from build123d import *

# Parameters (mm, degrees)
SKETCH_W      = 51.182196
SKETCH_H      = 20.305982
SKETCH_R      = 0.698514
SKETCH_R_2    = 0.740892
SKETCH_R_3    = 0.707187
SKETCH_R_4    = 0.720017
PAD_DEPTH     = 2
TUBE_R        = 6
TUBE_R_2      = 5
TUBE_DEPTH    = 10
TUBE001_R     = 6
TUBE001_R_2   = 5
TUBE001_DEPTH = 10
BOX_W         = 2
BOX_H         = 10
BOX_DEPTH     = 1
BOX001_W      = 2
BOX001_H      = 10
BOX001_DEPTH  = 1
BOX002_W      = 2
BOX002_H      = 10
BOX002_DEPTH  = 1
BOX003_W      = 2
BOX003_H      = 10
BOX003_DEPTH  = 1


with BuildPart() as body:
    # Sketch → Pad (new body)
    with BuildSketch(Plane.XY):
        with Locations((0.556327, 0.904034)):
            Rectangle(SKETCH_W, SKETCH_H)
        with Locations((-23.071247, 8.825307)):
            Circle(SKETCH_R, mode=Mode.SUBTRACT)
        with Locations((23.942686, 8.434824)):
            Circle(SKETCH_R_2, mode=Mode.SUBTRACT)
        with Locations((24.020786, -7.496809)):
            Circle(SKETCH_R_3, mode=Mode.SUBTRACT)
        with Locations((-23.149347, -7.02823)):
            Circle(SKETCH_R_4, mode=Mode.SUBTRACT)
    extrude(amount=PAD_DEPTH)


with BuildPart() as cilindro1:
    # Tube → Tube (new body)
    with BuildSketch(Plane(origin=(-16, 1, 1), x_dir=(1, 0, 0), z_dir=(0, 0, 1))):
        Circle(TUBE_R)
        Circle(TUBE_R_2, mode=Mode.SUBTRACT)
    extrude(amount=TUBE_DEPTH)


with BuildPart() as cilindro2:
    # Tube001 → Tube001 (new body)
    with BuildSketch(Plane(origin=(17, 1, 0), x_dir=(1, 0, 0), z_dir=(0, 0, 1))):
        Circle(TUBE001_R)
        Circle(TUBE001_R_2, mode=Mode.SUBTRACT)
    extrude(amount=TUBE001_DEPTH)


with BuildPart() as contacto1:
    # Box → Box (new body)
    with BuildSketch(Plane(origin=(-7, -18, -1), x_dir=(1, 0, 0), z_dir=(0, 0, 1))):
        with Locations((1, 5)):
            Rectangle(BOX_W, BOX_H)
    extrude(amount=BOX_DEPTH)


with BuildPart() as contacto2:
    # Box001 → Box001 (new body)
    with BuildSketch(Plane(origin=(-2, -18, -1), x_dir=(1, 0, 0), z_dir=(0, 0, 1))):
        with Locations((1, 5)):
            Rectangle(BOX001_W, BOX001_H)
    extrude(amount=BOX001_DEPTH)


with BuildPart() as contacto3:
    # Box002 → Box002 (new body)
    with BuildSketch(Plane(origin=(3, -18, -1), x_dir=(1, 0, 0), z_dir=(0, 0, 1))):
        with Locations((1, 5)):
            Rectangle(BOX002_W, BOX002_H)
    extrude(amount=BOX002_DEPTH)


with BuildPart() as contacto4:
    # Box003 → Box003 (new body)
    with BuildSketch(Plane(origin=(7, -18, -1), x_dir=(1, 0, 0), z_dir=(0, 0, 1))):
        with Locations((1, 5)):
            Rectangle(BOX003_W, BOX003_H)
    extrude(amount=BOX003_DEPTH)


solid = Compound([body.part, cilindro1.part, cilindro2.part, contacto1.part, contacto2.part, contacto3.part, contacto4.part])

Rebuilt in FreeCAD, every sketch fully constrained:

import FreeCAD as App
import Part
import Sketcher
Q = App.Units.Quantity

doc = App.newDocument("Part")
body = doc.addObject("PartDesign::Body", "Body")

# Sketch on XY plane
sketch1 = body.newObject("Sketcher::SketchObject", "Sketch")
sketch1.AttachmentSupport = (doc.getObject("XY_Plane"), [""])
sketch1.MapMode = "FlatFace"
sketch1.addGeometry([
    Part.LineSegment(App.Vector(-25.034771, 11.057025, 0), App.Vector(-25.034771, -9.248957, 0)),  # 0
    Part.LineSegment(App.Vector(-25.034771, -9.248957, 0), App.Vector(26.147425, -9.248957, 0)),  # 1
    Part.LineSegment(App.Vector(26.147425, -9.248957, 0), App.Vector(26.147425, 11.057025, 0)),  # 2
    Part.LineSegment(App.Vector(26.147425, 11.057025, 0), App.Vector(-25.034771, 11.057025, 0)),  # 3
    Part.Circle(App.Vector(-23.149347, -7.02823, 0), App.Vector(0, 0, 1), 0.720017),  # 4
    Part.Circle(App.Vector(24.020786, -7.496809, 0), App.Vector(0, 0, 1), 0.707187),  # 5
    Part.Circle(App.Vector(-23.071247, 8.825307, 0), App.Vector(0, 0, 1), 0.698514),  # 6
    Part.Circle(App.Vector(23.942686, 8.434824, 0), App.Vector(0, 0, 1), 0.740892),  # 7
], False)
sketch1.addConstraint([
    Sketcher.Constraint("Coincident", 0, 2, 1, 1),
    Sketcher.Constraint("Coincident", 1, 2, 2, 1),
    Sketcher.Constraint("Coincident", 2, 2, 3, 1),
    Sketcher.Constraint("Coincident", 3, 2, 0, 1),
    Sketcher.Constraint("Vertical", 0),
    Sketcher.Constraint("Horizontal", 1),
    Sketcher.Constraint("Vertical", 2),
    Sketcher.Constraint("Horizontal", 3),
    Sketcher.Constraint("Diameter", 4, Q("1.440034 mm")),
    Sketcher.Constraint("Diameter", 5, Q("1.414374 mm")),
    Sketcher.Constraint("Diameter", 6, Q("1.397028 mm")),
    Sketcher.Constraint("Diameter", 7, Q("1.481784 mm")),
    Sketcher.Constraint("DistanceY", 0, 2, 0, 1, Q("20.305982 mm")),
    Sketcher.Constraint("DistanceX", 4, 3, 6, 3, Q("0.0781 mm")),
    Sketcher.Constraint("DistanceX", 7, 3, 5, 3, Q("0.0781 mm")),
    Sketcher.Constraint("DistanceY", 7, 3, 2, 2, Q("2.622201 mm")),
    Sketcher.Constraint("DistanceX", 1, 1, 1, 2, Q("51.182196 mm")),
    Sketcher.Constraint("DistanceY", 4, 3, -1, 1, Q("7.02823 mm")),
    Sketcher.Constraint("DistanceY", 5, 3, -1, 1, Q("7.496809 mm")),
    Sketcher.Constraint("DistanceX", 0, 2, -1, 1, Q("25.034771 mm")),
    Sketcher.Constraint("DistanceY", 0, 2, 5, 3, Q("1.752148 mm")),
    Sketcher.Constraint("DistanceX", 5, 3, 1, 2, Q("2.126639 mm")),
    Sketcher.Constraint("DistanceX", 4, 3, 1, 2, Q("49.296772 mm")),
    Sketcher.Constraint("DistanceY", -1, 1, 6, 3, Q("8.825307 mm")),
])
pad1 = body.newObject("PartDesign::Pad", "Pad")
pad1.Profile = sketch1
pad1.Length = 2
body2 = doc.addObject("PartDesign::Body", "Body001")

# Sketch on XY plane
sketch2 = body2.newObject("Sketcher::SketchObject", "Sketch001")
sketch2.AttachmentSupport = (doc.getObject("XY_Plane001"), [""])
sketch2.MapMode = "FlatFace"
sketch2.AttachmentOffset = App.Placement(App.Vector(0, 0, 1), App.Rotation())
sketch2.addGeometry([
    Part.Circle(App.Vector(-16, 1, 0), App.Vector(0, 0, 1), 6),
    Part.Circle(App.Vector(-16, 1, 0), App.Vector(0, 0, 1), 5),
], False)
sketch2.addConstraint([
    Sketcher.Constraint("Coincident", 1, 3, 0, 3),
    Sketcher.Constraint("Diameter", 0, Q("12 mm")),
    Sketcher.Constraint("Diameter", 1, Q("10 mm")),
    Sketcher.Constraint("DistanceX", 0, 3, -1, 1, Q("16 mm")),
    Sketcher.Constraint("DistanceY", -1, 1, 0, 3, Q("1 mm")),
])
pad2 = body2.newObject("PartDesign::Pad", "Pad001")
pad2.Profile = sketch2
pad2.Length = 10
body3 = doc.addObject("PartDesign::Body", "Body002")

# Sketch on XY plane
sketch3 = body3.newObject("Sketcher::SketchObject", "Sketch002")
sketch3.AttachmentSupport = (doc.getObject("XY_Plane002"), [""])
sketch3.MapMode = "FlatFace"
sketch3.addGeometry([
    Part.Circle(App.Vector(17, 1, 0), App.Vector(0, 0, 1), 6),
    Part.Circle(App.Vector(17, 1, 0), App.Vector(0, 0, 1), 5),
], False)
sketch3.addConstraint([
    Sketcher.Constraint("Coincident", 1, 3, 0, 3),
    Sketcher.Constraint("Diameter", 0, Q("12 mm")),
    Sketcher.Constraint("Diameter", 1, Q("10 mm")),
    Sketcher.Constraint("DistanceX", -1, 1, 0, 3, Q("17 mm")),
    Sketcher.Constraint("DistanceY", -1, 1, 0, 3, Q("1 mm")),
])
pad3 = body3.newObject("PartDesign::Pad", "Pad002")
pad3.Profile = sketch3
pad3.Length = 10
body4 = doc.addObject("PartDesign::Body", "Body003")

# Sketch on XY plane
sketch4 = body4.newObject("Sketcher::SketchObject", "Sketch003")
sketch4.AttachmentSupport = (doc.getObject("XY_Plane003"), [""])
sketch4.MapMode = "FlatFace"
sketch4.AttachmentOffset = App.Placement(App.Vector(0, 0, -1), App.Rotation())
sketch4.addGeometry([
    Part.LineSegment(App.Vector(-7, -8, 0), App.Vector(-7, -18, 0)),
    Part.LineSegment(App.Vector(-7, -18, 0), App.Vector(-5, -18, 0)),
    Part.LineSegment(App.Vector(-5, -18, 0), App.Vector(-5, -8, 0)),
    Part.LineSegment(App.Vector(-5, -8, 0), App.Vector(-7, -8, 0)),
], False)
sketch4.addConstraint([
    Sketcher.Constraint("Coincident", 0, 2, 1, 1),
    Sketcher.Constraint("Coincident", 1, 2, 2, 1),
    Sketcher.Constraint("Coincident", 2, 2, 3, 1),
    Sketcher.Constraint("Coincident", 3, 2, 0, 1),
    Sketcher.Constraint("Vertical", 0),
    Sketcher.Constraint("Horizontal", 1),
    Sketcher.Constraint("Vertical", 2),
    Sketcher.Constraint("Horizontal", 3),
    Sketcher.Constraint("DistanceX", 1, 1, 1, 2, Q("2 mm")),
    Sketcher.Constraint("DistanceY", 0, 2, 0, 1, Q("10 mm")),
    Sketcher.Constraint("DistanceX", 0, 2, -1, 1, Q("7 mm")),
    Sketcher.Constraint("DistanceY", 0, 2, -1, 1, Q("18 mm")),
])
pad4 = body4.newObject("PartDesign::Pad", "Pad003")
pad4.Profile = sketch4
pad4.Length = 1
body5 = doc.addObject("PartDesign::Body", "Body004")

# Sketch on XY plane
sketch5 = body5.newObject("Sketcher::SketchObject", "Sketch004")
sketch5.AttachmentSupport = (doc.getObject("XY_Plane004"), [""])
sketch5.MapMode = "FlatFace"
sketch5.AttachmentOffset = App.Placement(App.Vector(0, 0, -1), App.Rotation())
sketch5.addGeometry([
    Part.LineSegment(App.Vector(-2, -8, 0), App.Vector(-2, -18, 0)),
    Part.LineSegment(App.Vector(-2, -18, 0), App.Vector(0, -18, 0)),
    Part.LineSegment(App.Vector(0, -18, 0), App.Vector(0, -8, 0)),
    Part.LineSegment(App.Vector(0, -8, 0), App.Vector(-2, -8, 0)),
], False)
sketch5.addConstraint([
    Sketcher.Constraint("Coincident", 0, 2, 1, 1),
    Sketcher.Constraint("Coincident", 1, 2, 2, 1),
    Sketcher.Constraint("Coincident", 2, 2, 3, 1),
    Sketcher.Constraint("Coincident", 3, 2, 0, 1),
    Sketcher.Constraint("Vertical", 0),
    Sketcher.Constraint("Horizontal", 1),
    Sketcher.Constraint("Vertical", 2),
    Sketcher.Constraint("Horizontal", 3),
    Sketcher.Constraint("PointOnObject", 1, 2, -2),
    Sketcher.Constraint("DistanceX", 1, 1, 1, 2, Q("2 mm")),
    Sketcher.Constraint("DistanceY", 0, 2, 0, 1, Q("10 mm")),
    Sketcher.Constraint("DistanceY", 0, 2, -1, 1, Q("18 mm")),
])
pad5 = body5.newObject("PartDesign::Pad", "Pad004")
pad5.Profile = sketch5
pad5.Length = 1
body6 = doc.addObject("PartDesign::Body", "Body005")

# Sketch on XY plane
sketch6 = body6.newObject("Sketcher::SketchObject", "Sketch005")
sketch6.AttachmentSupport = (doc.getObject("XY_Plane005"), [""])
sketch6.MapMode = "FlatFace"
sketch6.AttachmentOffset = App.Placement(App.Vector(0, 0, -1), App.Rotation())
sketch6.addGeometry([
    Part.LineSegment(App.Vector(3, -8, 0), App.Vector(3, -18, 0)),
    Part.LineSegment(App.Vector(3, -18, 0), App.Vector(5, -18, 0)),
    Part.LineSegment(App.Vector(5, -18, 0), App.Vector(5, -8, 0)),
    Part.LineSegment(App.Vector(5, -8, 0), App.Vector(3, -8, 0)),
], False)
sketch6.addConstraint([
    Sketcher.Constraint("Coincident", 0, 2, 1, 1),
    Sketcher.Constraint("Coincident", 1, 2, 2, 1),
    Sketcher.Constraint("Coincident", 2, 2, 3, 1),
    Sketcher.Constraint("Coincident", 3, 2, 0, 1),
    Sketcher.Constraint("Vertical", 0),
    Sketcher.Constraint("Horizontal", 1),
    Sketcher.Constraint("Vertical", 2),
    Sketcher.Constraint("Horizontal", 3),
    Sketcher.Constraint("DistanceX", 1, 1, 1, 2, Q("2 mm")),
    Sketcher.Constraint("DistanceY", 0, 2, 0, 1, Q("10 mm")),
    Sketcher.Constraint("DistanceX", -1, 1, 0, 2, Q("3 mm")),
    Sketcher.Constraint("DistanceY", 0, 2, -1, 1, Q("18 mm")),
])
pad6 = body6.newObject("PartDesign::Pad", "Pad005")
pad6.Profile = sketch6
pad6.Length = 1
body7 = doc.addObject("PartDesign::Body", "Body006")

# Sketch on XY plane
sketch7 = body7.newObject("Sketcher::SketchObject", "Sketch006")
sketch7.AttachmentSupport = (doc.getObject("XY_Plane006"), [""])
sketch7.MapMode = "FlatFace"
sketch7.AttachmentOffset = App.Placement(App.Vector(0, 0, -1), App.Rotation())
sketch7.addGeometry([
    Part.LineSegment(App.Vector(7, -8, 0), App.Vector(7, -18, 0)),
    Part.LineSegment(App.Vector(7, -18, 0), App.Vector(9, -18, 0)),
    Part.LineSegment(App.Vector(9, -18, 0), App.Vector(9, -8, 0)),
    Part.LineSegment(App.Vector(9, -8, 0), App.Vector(7, -8, 0)),
], False)
sketch7.addConstraint([
    Sketcher.Constraint("Coincident", 0, 2, 1, 1),
    Sketcher.Constraint("Coincident", 1, 2, 2, 1),
    Sketcher.Constraint("Coincident", 2, 2, 3, 1),
    Sketcher.Constraint("Coincident", 3, 2, 0, 1),
    Sketcher.Constraint("Vertical", 0),
    Sketcher.Constraint("Horizontal", 1),
    Sketcher.Constraint("Vertical", 2),
    Sketcher.Constraint("Horizontal", 3),
    Sketcher.Constraint("DistanceX", 1, 1, 1, 2, Q("2 mm")),
    Sketcher.Constraint("DistanceY", 0, 2, 0, 1, Q("10 mm")),
    Sketcher.Constraint("DistanceX", -1, 1, 0, 2, Q("7 mm")),
    Sketcher.Constraint("DistanceY", 0, 2, -1, 1, Q("18 mm")),
])
pad7 = body7.newObject("PartDesign::Pad", "Pad006")
pad7.Profile = sketch7
pad7.Length = 1

doc.recompute()
